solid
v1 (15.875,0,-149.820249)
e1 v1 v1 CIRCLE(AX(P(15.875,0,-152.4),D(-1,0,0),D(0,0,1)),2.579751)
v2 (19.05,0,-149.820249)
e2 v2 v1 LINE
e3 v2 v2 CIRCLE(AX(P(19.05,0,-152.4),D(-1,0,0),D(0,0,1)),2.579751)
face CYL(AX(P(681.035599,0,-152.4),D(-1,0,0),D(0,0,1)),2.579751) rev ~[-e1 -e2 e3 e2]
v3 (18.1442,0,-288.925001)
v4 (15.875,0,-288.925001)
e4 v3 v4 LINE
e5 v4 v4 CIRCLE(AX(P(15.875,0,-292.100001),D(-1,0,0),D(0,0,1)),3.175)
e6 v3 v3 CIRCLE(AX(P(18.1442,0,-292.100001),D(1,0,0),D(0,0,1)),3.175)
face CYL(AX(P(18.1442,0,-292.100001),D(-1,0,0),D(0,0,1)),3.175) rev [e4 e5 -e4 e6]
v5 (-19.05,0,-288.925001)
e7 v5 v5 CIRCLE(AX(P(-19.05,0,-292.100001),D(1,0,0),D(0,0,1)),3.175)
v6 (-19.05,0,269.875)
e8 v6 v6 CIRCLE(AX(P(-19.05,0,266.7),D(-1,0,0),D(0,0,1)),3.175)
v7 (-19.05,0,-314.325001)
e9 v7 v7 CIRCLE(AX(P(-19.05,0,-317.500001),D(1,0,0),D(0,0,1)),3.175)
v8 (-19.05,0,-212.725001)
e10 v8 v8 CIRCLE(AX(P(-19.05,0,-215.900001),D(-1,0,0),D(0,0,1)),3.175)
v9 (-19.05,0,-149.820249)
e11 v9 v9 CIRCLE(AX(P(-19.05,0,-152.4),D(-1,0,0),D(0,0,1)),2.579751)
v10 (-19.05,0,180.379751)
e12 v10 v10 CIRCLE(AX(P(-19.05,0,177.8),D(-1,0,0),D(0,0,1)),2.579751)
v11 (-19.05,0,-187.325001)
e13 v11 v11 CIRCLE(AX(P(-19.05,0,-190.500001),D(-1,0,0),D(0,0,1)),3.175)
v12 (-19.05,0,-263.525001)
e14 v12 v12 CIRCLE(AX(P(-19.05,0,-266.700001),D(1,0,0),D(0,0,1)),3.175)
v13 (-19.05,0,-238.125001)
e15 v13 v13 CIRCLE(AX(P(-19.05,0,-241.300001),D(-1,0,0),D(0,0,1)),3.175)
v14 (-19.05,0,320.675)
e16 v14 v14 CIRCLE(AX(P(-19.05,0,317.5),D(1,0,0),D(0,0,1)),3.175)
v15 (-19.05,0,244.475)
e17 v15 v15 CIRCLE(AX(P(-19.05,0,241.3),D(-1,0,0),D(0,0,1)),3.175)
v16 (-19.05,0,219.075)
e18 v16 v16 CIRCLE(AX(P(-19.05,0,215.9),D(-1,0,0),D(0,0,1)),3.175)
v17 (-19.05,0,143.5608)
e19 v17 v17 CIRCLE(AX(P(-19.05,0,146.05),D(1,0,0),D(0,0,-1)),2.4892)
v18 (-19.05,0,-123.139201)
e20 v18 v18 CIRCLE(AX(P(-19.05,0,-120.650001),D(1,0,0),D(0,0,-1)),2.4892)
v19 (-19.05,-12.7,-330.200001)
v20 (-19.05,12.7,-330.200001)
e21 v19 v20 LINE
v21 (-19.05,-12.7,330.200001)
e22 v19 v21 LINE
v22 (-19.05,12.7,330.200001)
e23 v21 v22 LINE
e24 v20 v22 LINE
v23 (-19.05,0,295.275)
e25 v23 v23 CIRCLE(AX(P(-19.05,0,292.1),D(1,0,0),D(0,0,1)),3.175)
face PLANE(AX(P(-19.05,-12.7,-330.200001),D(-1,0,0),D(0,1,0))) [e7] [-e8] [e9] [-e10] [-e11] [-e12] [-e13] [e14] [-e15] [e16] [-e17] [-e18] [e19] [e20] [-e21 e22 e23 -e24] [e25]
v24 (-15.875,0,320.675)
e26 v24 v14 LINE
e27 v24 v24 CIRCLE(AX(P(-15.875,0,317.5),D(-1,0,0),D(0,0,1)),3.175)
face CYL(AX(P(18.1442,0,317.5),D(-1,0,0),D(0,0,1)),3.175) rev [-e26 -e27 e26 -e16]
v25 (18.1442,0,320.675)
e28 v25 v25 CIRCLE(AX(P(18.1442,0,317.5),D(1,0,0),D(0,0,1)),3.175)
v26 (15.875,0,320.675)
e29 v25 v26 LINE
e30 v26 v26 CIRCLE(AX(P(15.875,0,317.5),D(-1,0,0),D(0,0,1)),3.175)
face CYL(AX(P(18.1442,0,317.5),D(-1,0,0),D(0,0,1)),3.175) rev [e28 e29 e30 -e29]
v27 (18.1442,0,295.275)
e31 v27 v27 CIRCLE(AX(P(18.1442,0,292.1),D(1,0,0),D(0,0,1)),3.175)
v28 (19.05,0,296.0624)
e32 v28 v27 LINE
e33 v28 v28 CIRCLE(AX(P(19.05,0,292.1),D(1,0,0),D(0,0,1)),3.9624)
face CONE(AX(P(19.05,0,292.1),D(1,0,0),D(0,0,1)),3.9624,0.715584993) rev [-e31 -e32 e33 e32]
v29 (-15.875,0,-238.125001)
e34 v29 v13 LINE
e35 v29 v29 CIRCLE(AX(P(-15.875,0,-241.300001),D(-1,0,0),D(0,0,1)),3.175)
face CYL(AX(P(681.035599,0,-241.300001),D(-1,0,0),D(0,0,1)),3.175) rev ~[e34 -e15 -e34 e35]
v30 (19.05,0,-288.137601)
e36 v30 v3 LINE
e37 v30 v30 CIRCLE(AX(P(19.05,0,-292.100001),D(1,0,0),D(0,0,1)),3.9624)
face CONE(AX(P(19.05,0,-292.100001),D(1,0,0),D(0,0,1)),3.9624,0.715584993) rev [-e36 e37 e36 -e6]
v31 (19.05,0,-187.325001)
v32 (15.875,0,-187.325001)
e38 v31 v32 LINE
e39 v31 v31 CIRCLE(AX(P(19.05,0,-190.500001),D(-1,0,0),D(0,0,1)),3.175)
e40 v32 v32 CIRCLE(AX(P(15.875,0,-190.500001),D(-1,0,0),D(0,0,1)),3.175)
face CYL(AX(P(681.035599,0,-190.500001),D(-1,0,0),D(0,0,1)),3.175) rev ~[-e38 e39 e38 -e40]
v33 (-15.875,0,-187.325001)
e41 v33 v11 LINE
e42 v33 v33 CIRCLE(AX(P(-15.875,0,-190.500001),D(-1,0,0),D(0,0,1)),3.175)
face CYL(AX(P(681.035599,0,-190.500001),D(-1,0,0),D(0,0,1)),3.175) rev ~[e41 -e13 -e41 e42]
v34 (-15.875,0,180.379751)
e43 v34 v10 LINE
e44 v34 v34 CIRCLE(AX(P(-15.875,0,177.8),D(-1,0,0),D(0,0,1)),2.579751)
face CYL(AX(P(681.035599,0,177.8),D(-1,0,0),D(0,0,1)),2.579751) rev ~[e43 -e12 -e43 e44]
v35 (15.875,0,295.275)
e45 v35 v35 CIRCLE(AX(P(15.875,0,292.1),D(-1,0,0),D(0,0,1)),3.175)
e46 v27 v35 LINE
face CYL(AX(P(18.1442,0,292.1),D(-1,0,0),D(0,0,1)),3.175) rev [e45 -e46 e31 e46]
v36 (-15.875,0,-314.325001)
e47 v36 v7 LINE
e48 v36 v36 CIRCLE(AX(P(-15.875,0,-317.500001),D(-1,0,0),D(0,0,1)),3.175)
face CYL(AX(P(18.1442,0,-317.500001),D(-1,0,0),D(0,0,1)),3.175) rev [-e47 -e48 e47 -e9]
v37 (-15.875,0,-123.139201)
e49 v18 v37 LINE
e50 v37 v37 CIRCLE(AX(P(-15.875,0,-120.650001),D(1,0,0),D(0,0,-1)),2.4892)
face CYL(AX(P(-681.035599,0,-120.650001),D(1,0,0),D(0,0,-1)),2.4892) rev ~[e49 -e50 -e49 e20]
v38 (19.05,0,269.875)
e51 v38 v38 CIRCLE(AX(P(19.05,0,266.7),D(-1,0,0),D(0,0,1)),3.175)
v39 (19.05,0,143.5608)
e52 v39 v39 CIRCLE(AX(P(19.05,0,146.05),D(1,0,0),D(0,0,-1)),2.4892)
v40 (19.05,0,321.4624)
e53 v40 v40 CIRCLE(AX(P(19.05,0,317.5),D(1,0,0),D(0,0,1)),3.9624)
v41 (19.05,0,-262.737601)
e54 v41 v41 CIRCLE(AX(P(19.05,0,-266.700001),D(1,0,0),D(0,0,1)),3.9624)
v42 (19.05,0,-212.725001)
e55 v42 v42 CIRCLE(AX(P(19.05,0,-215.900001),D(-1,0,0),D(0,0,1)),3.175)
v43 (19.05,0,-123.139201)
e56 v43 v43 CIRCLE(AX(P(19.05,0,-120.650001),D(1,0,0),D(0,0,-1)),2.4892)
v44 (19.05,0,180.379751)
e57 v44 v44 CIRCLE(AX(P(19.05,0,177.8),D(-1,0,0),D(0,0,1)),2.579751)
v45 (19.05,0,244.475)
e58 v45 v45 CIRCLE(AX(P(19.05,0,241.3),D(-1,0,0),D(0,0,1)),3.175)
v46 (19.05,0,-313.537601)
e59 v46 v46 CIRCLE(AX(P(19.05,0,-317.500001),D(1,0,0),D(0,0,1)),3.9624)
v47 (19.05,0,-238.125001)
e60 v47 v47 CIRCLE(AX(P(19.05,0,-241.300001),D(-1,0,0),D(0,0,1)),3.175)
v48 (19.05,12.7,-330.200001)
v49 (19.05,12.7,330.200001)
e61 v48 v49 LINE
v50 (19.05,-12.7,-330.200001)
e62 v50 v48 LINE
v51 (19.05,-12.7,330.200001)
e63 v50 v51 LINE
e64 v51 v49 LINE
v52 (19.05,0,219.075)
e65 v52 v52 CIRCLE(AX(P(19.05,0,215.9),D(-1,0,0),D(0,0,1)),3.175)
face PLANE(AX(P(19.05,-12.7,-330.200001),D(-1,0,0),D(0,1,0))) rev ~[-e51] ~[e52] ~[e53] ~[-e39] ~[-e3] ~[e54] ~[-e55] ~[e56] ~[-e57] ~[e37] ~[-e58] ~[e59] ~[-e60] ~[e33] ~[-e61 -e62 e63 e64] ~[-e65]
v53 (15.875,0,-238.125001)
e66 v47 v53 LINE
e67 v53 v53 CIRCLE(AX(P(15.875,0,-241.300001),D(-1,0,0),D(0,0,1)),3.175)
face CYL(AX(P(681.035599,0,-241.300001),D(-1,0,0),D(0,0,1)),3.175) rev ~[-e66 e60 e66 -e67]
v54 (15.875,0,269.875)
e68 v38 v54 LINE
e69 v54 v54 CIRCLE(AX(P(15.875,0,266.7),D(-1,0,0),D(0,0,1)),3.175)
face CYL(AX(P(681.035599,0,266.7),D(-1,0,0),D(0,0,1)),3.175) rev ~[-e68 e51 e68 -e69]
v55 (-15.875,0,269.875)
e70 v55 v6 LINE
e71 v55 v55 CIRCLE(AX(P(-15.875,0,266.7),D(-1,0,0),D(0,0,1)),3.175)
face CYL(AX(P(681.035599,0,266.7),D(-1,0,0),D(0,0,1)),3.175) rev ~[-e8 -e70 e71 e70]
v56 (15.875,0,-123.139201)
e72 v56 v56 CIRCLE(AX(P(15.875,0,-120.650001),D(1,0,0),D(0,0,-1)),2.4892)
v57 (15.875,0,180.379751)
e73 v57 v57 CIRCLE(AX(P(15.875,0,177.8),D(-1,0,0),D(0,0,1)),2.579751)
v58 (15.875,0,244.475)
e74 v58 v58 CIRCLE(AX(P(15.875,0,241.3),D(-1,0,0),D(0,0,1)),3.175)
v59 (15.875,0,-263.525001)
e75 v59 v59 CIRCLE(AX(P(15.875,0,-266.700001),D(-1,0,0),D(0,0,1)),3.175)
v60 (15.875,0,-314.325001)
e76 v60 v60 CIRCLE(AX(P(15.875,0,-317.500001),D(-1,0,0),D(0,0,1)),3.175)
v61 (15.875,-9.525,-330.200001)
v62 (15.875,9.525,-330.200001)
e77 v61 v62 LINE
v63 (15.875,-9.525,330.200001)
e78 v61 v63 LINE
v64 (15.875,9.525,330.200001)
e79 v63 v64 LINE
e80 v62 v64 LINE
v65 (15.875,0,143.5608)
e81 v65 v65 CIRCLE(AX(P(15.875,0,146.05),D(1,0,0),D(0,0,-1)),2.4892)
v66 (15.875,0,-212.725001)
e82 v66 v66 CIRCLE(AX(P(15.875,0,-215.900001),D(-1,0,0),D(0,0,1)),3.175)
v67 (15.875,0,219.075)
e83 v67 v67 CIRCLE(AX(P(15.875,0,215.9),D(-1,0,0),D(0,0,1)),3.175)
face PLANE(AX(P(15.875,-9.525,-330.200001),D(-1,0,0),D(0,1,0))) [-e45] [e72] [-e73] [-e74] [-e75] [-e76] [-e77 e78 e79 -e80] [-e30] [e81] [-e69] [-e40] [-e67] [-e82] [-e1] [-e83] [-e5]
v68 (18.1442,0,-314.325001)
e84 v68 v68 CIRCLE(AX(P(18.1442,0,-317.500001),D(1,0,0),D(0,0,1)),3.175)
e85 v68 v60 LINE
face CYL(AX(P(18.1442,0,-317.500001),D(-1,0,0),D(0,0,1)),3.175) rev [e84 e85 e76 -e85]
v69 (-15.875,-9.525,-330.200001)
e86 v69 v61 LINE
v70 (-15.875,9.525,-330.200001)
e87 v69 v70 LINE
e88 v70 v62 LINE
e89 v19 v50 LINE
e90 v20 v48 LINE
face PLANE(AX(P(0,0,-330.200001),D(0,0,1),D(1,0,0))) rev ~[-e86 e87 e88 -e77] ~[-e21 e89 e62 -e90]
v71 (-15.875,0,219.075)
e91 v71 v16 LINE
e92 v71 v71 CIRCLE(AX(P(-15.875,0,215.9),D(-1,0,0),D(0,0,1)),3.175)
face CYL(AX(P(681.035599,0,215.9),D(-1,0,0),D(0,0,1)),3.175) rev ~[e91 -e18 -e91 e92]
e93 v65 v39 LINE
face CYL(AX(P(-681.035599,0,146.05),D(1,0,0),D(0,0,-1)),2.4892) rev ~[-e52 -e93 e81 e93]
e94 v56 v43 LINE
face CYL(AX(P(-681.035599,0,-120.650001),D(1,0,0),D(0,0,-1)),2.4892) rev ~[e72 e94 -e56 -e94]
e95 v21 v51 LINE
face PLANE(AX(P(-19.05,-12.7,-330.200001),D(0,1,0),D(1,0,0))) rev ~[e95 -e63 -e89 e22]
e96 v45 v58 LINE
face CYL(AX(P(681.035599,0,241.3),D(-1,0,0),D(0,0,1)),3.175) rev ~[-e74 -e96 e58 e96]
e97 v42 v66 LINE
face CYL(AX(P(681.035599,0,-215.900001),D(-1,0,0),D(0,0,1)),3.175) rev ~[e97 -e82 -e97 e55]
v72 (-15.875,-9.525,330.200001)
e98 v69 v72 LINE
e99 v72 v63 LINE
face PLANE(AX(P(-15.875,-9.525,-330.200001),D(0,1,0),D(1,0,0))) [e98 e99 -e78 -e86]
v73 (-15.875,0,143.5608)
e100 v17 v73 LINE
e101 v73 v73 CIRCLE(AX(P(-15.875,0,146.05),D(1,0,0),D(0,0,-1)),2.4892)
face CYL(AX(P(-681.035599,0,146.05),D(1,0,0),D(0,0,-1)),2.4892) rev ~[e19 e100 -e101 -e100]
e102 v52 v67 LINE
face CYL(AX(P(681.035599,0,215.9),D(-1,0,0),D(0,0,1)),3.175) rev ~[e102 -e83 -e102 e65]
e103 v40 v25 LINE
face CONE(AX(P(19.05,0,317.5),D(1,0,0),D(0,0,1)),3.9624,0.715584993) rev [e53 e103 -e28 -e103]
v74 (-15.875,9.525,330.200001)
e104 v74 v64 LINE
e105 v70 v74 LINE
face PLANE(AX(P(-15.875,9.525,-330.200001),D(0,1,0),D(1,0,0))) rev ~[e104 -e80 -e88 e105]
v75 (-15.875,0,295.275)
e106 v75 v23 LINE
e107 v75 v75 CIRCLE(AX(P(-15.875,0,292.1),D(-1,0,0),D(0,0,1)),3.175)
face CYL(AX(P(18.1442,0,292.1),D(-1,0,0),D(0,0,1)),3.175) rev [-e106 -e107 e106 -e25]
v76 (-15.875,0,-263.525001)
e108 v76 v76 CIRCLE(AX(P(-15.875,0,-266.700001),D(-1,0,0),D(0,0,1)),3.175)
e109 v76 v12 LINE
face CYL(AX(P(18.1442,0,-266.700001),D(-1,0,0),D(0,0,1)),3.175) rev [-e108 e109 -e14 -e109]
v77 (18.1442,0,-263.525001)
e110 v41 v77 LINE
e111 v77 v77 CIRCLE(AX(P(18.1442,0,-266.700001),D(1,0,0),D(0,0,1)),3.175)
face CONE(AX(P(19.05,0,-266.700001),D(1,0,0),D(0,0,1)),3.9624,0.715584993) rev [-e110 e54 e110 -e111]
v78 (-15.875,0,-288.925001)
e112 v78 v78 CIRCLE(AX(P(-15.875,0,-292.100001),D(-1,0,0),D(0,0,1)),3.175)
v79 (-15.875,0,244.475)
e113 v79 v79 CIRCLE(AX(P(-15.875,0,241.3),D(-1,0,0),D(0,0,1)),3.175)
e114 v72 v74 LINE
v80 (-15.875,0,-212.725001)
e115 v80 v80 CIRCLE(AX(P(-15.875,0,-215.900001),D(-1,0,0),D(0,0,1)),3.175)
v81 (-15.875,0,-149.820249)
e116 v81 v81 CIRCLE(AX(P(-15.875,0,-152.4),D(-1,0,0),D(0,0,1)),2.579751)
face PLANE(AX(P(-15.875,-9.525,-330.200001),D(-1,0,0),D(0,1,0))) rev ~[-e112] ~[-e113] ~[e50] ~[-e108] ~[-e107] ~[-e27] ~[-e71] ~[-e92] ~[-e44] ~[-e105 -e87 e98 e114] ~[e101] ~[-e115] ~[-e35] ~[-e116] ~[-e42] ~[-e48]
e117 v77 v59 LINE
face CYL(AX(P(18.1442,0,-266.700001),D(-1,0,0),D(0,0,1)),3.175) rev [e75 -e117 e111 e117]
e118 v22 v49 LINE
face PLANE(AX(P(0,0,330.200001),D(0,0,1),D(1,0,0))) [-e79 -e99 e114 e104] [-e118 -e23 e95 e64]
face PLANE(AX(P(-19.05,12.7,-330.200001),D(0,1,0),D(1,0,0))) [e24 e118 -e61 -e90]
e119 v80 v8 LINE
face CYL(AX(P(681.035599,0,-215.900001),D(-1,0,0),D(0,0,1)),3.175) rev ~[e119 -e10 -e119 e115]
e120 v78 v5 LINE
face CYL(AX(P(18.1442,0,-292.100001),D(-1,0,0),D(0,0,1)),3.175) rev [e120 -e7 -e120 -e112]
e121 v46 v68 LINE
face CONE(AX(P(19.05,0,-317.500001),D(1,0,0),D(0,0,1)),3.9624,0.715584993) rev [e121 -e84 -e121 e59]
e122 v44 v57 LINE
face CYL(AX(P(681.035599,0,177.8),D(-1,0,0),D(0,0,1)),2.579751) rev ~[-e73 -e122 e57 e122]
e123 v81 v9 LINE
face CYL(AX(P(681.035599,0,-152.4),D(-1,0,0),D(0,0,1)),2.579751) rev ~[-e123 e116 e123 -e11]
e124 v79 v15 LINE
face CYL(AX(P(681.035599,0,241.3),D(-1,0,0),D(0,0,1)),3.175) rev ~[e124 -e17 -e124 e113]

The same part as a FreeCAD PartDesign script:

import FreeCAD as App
import Part
import Sketcher

V = App.Vector
Q = App.Units.Quantity


def add_polygon(sketch, points):
    """Adds a closed chain of lines whose ends are joined by coincident constraints."""
    first, n = sketch.GeometryCount, len(points)
    for a, b in zip(points, points[1:] + points[:1]):
        sketch.addGeometry(Part.LineSegment(App.Vector(*a, 0), App.Vector(*b, 0)), False)
    for i in range(n):
        sketch.addConstraint(Sketcher.Constraint("Coincident", first + i, 2, first + (i + 1) % n, 1))

doc = App.newDocument("Part")
body = doc.addObject("PartDesign::Body", "Body")

sketch1 = body.newObject("Sketcher::SketchObject", "Sketch")
sketch1.AttachmentSupport = (doc.getObject("XY_Plane"), [""])
sketch1.MapMode = "FlatFace"
add_polygon(sketch1, [(-19.05, 12.7), (-19.05, -12.7), (19.05, -12.7), (19.05, 12.7)])
add_polygon(sketch1, [(15.875, -9.525), (-15.875, -9.525), (-15.875, 9.525), (15.875, 9.525)])
sketch1.addConstraint([
    Sketcher.Constraint("Vertical", 0),
    Sketcher.Constraint("Horizontal", 1),
    Sketcher.Constraint("Vertical", 2),
    Sketcher.Constraint("Horizontal", 3),
    Sketcher.Constraint("Horizontal", 4),
    Sketcher.Constraint("Vertical", 5),
    Sketcher.Constraint("Horizontal", 6),
    Sketcher.Constraint("Vertical", 7),
    Sketcher.Constraint("Symmetric", 0, 2, 2, 2, -1, 1),
    Sketcher.Constraint("Symmetric", 4, 2, 6, 2, -1, 1),
    Sketcher.Constraint("DistanceY", 0, 2, 0, 1, Q("1 in")),
    Sketcher.Constraint("DistanceX", 1, 1, 1, 2, Q("1.5 in")),
    Sketcher.Constraint("DistanceX", 4, 2, 4, 1, Q("1.25 in")),
    Sketcher.Constraint("DistanceY", 5, 1, 5, 2, Q("0.75 in")),
])
pad1 = body.newObject("PartDesign::Pad", "Pad")
pad1.Profile = sketch1
pad1.Type = "TwoLengths"
pad1.Length = Q("13 in")
pad1.Length2 = Q("13 in")

sketch2 = body.newObject("Sketcher::SketchObject", "Sketch001")
sketch2.AttachmentSupport = (doc.getObject("XZ_Plane"), [""])
sketch2.MapMode = "FlatFace"
add_polygon(sketch2, [(19.05, -317.500001), (-19.05, -317.500001), (-19.05, -314.325001), (18.1442, -314.325001), (19.05, -313.537601)])
sketch2.addGeometry(Part.LineSegment(V(-19.05, -317.500001, 0), V(19.05, -317.500001, 0)), True)
sketch2.addConstraint([
    Sketcher.Constraint("Horizontal", 0),
    Sketcher.Constraint("Vertical", 1),
    Sketcher.Constraint("Horizontal", 2),
    Sketcher.Constraint("Vertical", 4),
    Sketcher.Constraint("Horizontal", 5),
    Sketcher.Constraint("Coincident", 5, 1, 0, 2),
    Sketcher.Constraint("Vertical", 3, 2, 5, 2),
    Sketcher.Constraint("DistanceX", 0, 2, 0, 1, Q("1.5 in")),
    Sketcher.Constraint("Angle", 3, Q("41 deg")),
    Sketcher.Constraint("DistanceY", 0, 2, -1, 1, Q("12.5 in")),
    Sketcher.Constraint("DistanceY", 1, 1, 1, 2, Q("0.125 in")),
    Sketcher.Constraint("DistanceY", 4, 2, 4, 1, Q("0.156 in")),
    Sketcher.Constraint("DistanceX", 0, 2, -1, 1, Q("0.75 in")),
])
groove = body.newObject("PartDesign::Groove", "Groove")
groove.Profile = sketch2
groove.ReferenceAxis = (sketch2, ["Axis0"])
groove.Angle = 360
doc.recompute()

linearpattern = body.newObject("PartDesign::LinearPattern", "LinearPattern")
linearpattern.Originals = [groove]
linearpattern.Direction = (doc.getObject("Z_Axis"), [""])
linearpattern.Mode = "offset"
linearpattern.Offset = Q("1 in")
linearpattern.Occurrences = 2
body.Tip = linearpattern
doc.recompute()

linearpattern2 = body.newObject("PartDesign::LinearPattern", "LinearPattern001")
linearpattern2.Originals = [groove]
linearpattern2.Direction = (doc.getObject("Z_Axis"), [""])
linearpattern2.Mode = "offset"
linearpattern2.Offset = Q("25 in")
linearpattern2.Occurrences = 2
body.Tip = linearpattern2
doc.recompute()

linearpattern3 = body.newObject("PartDesign::LinearPattern", "LinearPattern002")
linearpattern3.Originals = [groove]
linearpattern3.Direction = (doc.getObject("Z_Axis"), [""])
linearpattern3.Mode = "offset"
linearpattern3.Offset = Q("2 in")
linearpattern3.Occurrences = 2
body.Tip = linearpattern3
doc.recompute()

linearpattern4 = body.newObject("PartDesign::LinearPattern", "LinearPattern003")
linearpattern4.Originals = [groove]
linearpattern4.Direction = (doc.getObject("Z_Axis"), [""])
linearpattern4.Mode = "offset"
linearpattern4.Offset = Q("24 in")
linearpattern4.Occurrences = 2
body.Tip = linearpattern4

sketch3 = body.newObject("Sketcher::SketchObject", "Sketch002")
sketch3.AttachmentSupport = (doc.getObject("YZ_Plane"), [""])
sketch3.MapMode = "FlatFace"
sketch3.AttachmentOffset = App.Placement(V(0, 0, 0.75 * 25.4), App.Rotation())
sketch3.addGeometry([
    Part.Circle(V(0, 266.7, 0), V(0, 0, 1), 3.175),
    Part.Circle(V(0, 241.3, 0), V(0, 0, 1), 3.175),
    Part.Circle(V(0, 215.9, 0), V(0, 0, 1), 3.175),
    Part.Circle(V(0, -241.300001, 0), V(0, 0, 1), 3.175),
    Part.Circle(V(0, -215.900001, 0), V(0, 0, 1), 3.175),
    Part.Circle(V(0, -190.500001, 0), V(0, 0, 1), 3.175),
], False)
sketch3.addConstraint([
    Sketcher.Constraint("Equal", 0, 1),
    Sketcher.Constraint("Equal", 1, 2),
    Sketcher.Constraint("Equal", 2, 3),
    Sketcher.Constraint("Equal", 3, 4),
    Sketcher.Constraint("Equal", 4, 5),
    Sketcher.Constraint("Symmetric", 1, 3, 3, 3, -1, 1),
    Sketcher.Constraint("Symmetric", 2, 3, 4, 3, -1, 1),
    Sketcher.Constraint("PointOnObject", 0, 3, -2),
    Sketcher.Constraint("PointOnObject", 1, 3, -2),
    Sketcher.Constraint("PointOnObject", 2, 3, -2),
    Sketcher.Constraint("PointOnObject", 5, 3, -2),
    Sketcher.Constraint("Diameter", 0, Q("0.25 in")),
    Sketcher.Constraint("DistanceY", 1, 3, 0, 3, Q("1 in")),
    Sketcher.Constraint("DistanceY", 2, 3, 1, 3, Q("1 in")),
    Sketcher.Constraint("DistanceY", 3, 3, 2, 3, Q("18 in")),
    Sketcher.Constraint("DistanceY", 4, 3, 5, 3, Q("1 in")),
])
doc.recompute()
hole = body.newObject("PartDesign::Hole", "Hole")
hole.Profile = sketch3
hole.ThreadType = "None"
hole.Diameter = Q("0.25 in")
hole.DepthType = "ThroughAll"

sketch4 = body.newObject("Sketcher::SketchObject", "Sketch003")
sketch4.AttachmentSupport = (doc.getObject("YZ_Plane"), [""])
sketch4.MapMode = "FlatFace"
sketch4.AttachmentOffset = App.Placement(V(0, 0, 0.75 * 25.4), App.Rotation())
sketch4.addGeometry([
    Part.Circle(V(0, -152.4, 0), V(0, 0, 1), 2.579751),
    Part.Circle(V(0, 177.8, 0), V(0, 0, 1), 2.579751),
], False)
sketch4.addConstraint([
    Sketcher.Constraint("Equal", 0, 1),
    Sketcher.Constraint("PointOnObject", 0, 3, -2),
    Sketcher.Constraint("PointOnObject", 1, 3, -2),
    Sketcher.Constraint("DistanceY", 0, 3, -1, 1, Q("6 in")),
    Sketcher.Constraint("DistanceY", -1, 1, 1, 3, Q("7 in")),
    Sketcher.Constraint("Diameter", 0, 5.159502),
])
doc.recompute()
hole2 = body.newObject("PartDesign::Hole", "Hole001")
hole2.Profile = sketch4
hole2.ThreadType = "None"
hole2.Diameter = 5.159502
hole2.DepthType = "ThroughAll"

sketch5 = body.newObject("Sketcher::SketchObject", "Sketch004")
sketch5.AttachmentSupport = (doc.getObject("YZ_Plane"), [""])
sketch5.MapMode = "FlatFace"
sketch5.AttachmentOffset = App.Placement(V(0, 0, -0.75 * 25.4), App.Rotation())
sketch5.addGeometry([
    Part.Circle(V(0, -120.650001, 0), V(0, 0, 1), 2.4892),
    Part.Circle(V(0, 146.05, 0), V(0, 0, 1), 2.4892),
], False)
sketch5.addConstraint([
    Sketcher.Constraint("Equal", 0, 1),
    Sketcher.Constraint("PointOnObject", 0, 3, -2),
    Sketcher.Constraint("PointOnObject", 1, 3, -2),
    Sketcher.Constraint("Diameter", 0, Q("0.196 in")),
    Sketcher.Constraint("DistanceY", 0, 3, 1, 3, Q("10.5 in")),
    Sketcher.Constraint("DistanceY", 0, 3, -1, 1, Q("4.75 in")),
])
doc.recompute()
hole3 = body.newObject("PartDesign::Hole", "Hole002")
hole3.Profile = sketch5
hole3.ThreadType = "None"
hole3.Diameter = Q("0.196 in")
hole3.DepthType = "ThroughAll"
hole3.Reversed = True

doc.recompute()
